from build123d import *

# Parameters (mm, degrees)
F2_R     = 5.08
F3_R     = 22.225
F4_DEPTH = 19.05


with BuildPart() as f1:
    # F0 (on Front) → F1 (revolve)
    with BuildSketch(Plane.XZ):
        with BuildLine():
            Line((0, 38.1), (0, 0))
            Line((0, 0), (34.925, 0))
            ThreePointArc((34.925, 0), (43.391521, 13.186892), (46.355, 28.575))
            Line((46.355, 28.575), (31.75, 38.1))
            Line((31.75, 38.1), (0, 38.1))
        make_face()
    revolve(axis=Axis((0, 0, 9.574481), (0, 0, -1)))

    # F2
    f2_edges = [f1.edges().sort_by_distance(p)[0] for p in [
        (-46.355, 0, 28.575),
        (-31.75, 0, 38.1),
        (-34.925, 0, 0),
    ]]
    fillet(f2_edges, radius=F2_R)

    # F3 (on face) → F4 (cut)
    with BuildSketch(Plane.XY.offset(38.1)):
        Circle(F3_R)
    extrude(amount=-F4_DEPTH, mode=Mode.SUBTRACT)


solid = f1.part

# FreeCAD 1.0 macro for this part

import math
import FreeCAD as App
import Part
import Sketcher
Q = App.Units.Quantity


def edges_at(feature, points):
    """Names of the edges that pass closest to the given points."""
    edges = feature.Shape.Edges
    near = lambda p: min(range(len(edges)), key=lambda i: edges[i].distToShape(Part.Vertex(*p))[0])
    return sorted({f"Edge{near(p) + 1}" for p in points})

doc = App.newDocument("Part")
params = doc.addObject("Spreadsheet::Sheet", "Params")
for row, (alias, value) in enumerate([
    ("sketch1_height", "1.5 in"),
    ("sketch1_width", "1.25 in"),
    ("sketch1_width2", "1.375 in"),
    ("revolution_angle", "360 deg"),
    ("fillet_radius", "0.2 in"),
    ("sketch2_diameter", "1.75 in"),
    ("pocket1_length", "0.75 in"),
], start=1):
    params.set(f"A{row}", alias)
    params.set(f"B{row}", "=" + value)
    params.setAlias(f"B{row}", alias)

body = doc.addObject("PartDesign::Body", "Body")

# Sketch on XZ plane
sketch1 = doc.addObject("Sketcher::SketchObject", "Sketch")
body.addObject(sketch1)
sketch1.AttachmentSupport = (doc.XZ_Plane, [""])
sketch1.MapMode = "FlatFace"
sketch1.addGeometry(Part.LineSegment(App.Vector(0, 38, 0), App.Vector(0, 0, 0)), False)
sketch1.addGeometry(Part.LineSegment(App.Vector(0, 0, 0), App.Vector(35, 0, 0)), False)
sketch1.addGeometry(Part.ArcOfCircle(Part.Circle(App.Vector(5, 29, 0), App.Vector(0, 0, 1), 41), math.radians(-44), math.radians(0)), False)
sketch1.addGeometry(Part.LineSegment(App.Vector(46, 29, 0), App.Vector(32, 38, 0)), False)
sketch1.addGeometry(Part.LineSegment(App.Vector(32, 38, 0), App.Vector(0, 38, 0)), False)
sketch1.addConstraint(Sketcher.Constraint("Coincident", 0, 2, 1, 1))
sketch1.addConstraint(Sketcher.Constraint("Coincident", 1, 2, 2, 1))
sketch1.addConstraint(Sketcher.Constraint("Coincident", 2, 2, 3, 1))
sketch1.addConstraint(Sketcher.Constraint("Coincident", 3, 2, 4, 1))
sketch1.addConstraint(Sketcher.Constraint("Coincident", 4, 2, 0, 1))
sketch1.addConstraint(Sketcher.Constraint("Vertical", 0))
sketch1.addConstraint(Sketcher.Constraint("Horizontal", 1))
sketch1.addConstraint(Sketcher.Constraint("Horizontal", 4))
sketch1.addConstraint(Sketcher.Constraint("Coincident", 0, 2, -1, 1))
sketch1.addConstraint(Sketcher.Constraint("DistanceY", 0, 2, 0, 1, Q("1.5 in")))
sketch1.addConstraint(Sketcher.Constraint("DistanceX", 4, 2, 4, 1, Q("1.25 in")))
sketch1.addConstraint(Sketcher.Constraint("DistanceX", 1, 1, 1, 2, Q("1.375 in")))
sketch1.addConstraint(Sketcher.Constraint("DistanceX", 1, 2, 2, 2, Q("0.45 in")))
sketch1.addConstraint(Sketcher.Constraint("DistanceY", -1, 1, 2, 3, Q("1.1250001 in")))
sketch1.addConstraint(Sketcher.Constraint("DistanceY", -1, 1, 2, 2, Q("1.125 in")))
sketch1.setExpression("Constraints[9]", "Params.sketch1_height")
sketch1.setExpression("Constraints[10]", "Params.sketch1_width")
sketch1.setExpression("Constraints[11]", "Params.sketch1_width2")
revolution = doc.addObject("PartDesign::Revolution", "Revolution")
body.addObject(revolution)
revolution.Profile = sketch1
revolution.ReferenceAxis = (sketch1, ["V_Axis"])
revolution.setExpression("Angle", "Params.revolution_angle")
doc.recompute()

fillet = doc.addObject("PartDesign::Fillet", "Fillet")
body.addObject(fillet)
fillet.Base = (revolution, edges_at(revolution, [(-46.355, 0, 28.575), (-31.75, 0, 38.1), (-34.925, 0, 0)]))
fillet.setExpression("Radius", "Params.fillet_radius")

# Sketch on XY plane
sketch2 = doc.addObject("Sketcher::SketchObject", "Sketch001")
body.addObject(sketch2)
sketch2.AttachmentSupport = (doc.XY_Plane, [""])
sketch2.MapMode = "FlatFace"
sketch2.AttachmentOffset = App.Placement(App.Vector(0, 0, 1.5 * 25.4), App.Rotation())
sketch2.addGeometry(Part.Circle(App.Vector(0, 0, 0), App.Vector(0, 0, 1), 22), False)
sketch2.addConstraint(Sketcher.Constraint("Coincident", 0, 3, -1, 1))
sketch2.addConstraint(Sketcher.Constraint("Diameter", 0, Q("1.75 in")))
sketch2.setExpression("Constraints[1]", "Params.sketch2_diameter")
pocket1 = doc.addObject("PartDesign::Pocket", "Pocket")
body.addObject(pocket1)
pocket1.Profile = sketch2
pocket1.setExpression("Length", "Params.pocket1_length")

doc.recompute()
